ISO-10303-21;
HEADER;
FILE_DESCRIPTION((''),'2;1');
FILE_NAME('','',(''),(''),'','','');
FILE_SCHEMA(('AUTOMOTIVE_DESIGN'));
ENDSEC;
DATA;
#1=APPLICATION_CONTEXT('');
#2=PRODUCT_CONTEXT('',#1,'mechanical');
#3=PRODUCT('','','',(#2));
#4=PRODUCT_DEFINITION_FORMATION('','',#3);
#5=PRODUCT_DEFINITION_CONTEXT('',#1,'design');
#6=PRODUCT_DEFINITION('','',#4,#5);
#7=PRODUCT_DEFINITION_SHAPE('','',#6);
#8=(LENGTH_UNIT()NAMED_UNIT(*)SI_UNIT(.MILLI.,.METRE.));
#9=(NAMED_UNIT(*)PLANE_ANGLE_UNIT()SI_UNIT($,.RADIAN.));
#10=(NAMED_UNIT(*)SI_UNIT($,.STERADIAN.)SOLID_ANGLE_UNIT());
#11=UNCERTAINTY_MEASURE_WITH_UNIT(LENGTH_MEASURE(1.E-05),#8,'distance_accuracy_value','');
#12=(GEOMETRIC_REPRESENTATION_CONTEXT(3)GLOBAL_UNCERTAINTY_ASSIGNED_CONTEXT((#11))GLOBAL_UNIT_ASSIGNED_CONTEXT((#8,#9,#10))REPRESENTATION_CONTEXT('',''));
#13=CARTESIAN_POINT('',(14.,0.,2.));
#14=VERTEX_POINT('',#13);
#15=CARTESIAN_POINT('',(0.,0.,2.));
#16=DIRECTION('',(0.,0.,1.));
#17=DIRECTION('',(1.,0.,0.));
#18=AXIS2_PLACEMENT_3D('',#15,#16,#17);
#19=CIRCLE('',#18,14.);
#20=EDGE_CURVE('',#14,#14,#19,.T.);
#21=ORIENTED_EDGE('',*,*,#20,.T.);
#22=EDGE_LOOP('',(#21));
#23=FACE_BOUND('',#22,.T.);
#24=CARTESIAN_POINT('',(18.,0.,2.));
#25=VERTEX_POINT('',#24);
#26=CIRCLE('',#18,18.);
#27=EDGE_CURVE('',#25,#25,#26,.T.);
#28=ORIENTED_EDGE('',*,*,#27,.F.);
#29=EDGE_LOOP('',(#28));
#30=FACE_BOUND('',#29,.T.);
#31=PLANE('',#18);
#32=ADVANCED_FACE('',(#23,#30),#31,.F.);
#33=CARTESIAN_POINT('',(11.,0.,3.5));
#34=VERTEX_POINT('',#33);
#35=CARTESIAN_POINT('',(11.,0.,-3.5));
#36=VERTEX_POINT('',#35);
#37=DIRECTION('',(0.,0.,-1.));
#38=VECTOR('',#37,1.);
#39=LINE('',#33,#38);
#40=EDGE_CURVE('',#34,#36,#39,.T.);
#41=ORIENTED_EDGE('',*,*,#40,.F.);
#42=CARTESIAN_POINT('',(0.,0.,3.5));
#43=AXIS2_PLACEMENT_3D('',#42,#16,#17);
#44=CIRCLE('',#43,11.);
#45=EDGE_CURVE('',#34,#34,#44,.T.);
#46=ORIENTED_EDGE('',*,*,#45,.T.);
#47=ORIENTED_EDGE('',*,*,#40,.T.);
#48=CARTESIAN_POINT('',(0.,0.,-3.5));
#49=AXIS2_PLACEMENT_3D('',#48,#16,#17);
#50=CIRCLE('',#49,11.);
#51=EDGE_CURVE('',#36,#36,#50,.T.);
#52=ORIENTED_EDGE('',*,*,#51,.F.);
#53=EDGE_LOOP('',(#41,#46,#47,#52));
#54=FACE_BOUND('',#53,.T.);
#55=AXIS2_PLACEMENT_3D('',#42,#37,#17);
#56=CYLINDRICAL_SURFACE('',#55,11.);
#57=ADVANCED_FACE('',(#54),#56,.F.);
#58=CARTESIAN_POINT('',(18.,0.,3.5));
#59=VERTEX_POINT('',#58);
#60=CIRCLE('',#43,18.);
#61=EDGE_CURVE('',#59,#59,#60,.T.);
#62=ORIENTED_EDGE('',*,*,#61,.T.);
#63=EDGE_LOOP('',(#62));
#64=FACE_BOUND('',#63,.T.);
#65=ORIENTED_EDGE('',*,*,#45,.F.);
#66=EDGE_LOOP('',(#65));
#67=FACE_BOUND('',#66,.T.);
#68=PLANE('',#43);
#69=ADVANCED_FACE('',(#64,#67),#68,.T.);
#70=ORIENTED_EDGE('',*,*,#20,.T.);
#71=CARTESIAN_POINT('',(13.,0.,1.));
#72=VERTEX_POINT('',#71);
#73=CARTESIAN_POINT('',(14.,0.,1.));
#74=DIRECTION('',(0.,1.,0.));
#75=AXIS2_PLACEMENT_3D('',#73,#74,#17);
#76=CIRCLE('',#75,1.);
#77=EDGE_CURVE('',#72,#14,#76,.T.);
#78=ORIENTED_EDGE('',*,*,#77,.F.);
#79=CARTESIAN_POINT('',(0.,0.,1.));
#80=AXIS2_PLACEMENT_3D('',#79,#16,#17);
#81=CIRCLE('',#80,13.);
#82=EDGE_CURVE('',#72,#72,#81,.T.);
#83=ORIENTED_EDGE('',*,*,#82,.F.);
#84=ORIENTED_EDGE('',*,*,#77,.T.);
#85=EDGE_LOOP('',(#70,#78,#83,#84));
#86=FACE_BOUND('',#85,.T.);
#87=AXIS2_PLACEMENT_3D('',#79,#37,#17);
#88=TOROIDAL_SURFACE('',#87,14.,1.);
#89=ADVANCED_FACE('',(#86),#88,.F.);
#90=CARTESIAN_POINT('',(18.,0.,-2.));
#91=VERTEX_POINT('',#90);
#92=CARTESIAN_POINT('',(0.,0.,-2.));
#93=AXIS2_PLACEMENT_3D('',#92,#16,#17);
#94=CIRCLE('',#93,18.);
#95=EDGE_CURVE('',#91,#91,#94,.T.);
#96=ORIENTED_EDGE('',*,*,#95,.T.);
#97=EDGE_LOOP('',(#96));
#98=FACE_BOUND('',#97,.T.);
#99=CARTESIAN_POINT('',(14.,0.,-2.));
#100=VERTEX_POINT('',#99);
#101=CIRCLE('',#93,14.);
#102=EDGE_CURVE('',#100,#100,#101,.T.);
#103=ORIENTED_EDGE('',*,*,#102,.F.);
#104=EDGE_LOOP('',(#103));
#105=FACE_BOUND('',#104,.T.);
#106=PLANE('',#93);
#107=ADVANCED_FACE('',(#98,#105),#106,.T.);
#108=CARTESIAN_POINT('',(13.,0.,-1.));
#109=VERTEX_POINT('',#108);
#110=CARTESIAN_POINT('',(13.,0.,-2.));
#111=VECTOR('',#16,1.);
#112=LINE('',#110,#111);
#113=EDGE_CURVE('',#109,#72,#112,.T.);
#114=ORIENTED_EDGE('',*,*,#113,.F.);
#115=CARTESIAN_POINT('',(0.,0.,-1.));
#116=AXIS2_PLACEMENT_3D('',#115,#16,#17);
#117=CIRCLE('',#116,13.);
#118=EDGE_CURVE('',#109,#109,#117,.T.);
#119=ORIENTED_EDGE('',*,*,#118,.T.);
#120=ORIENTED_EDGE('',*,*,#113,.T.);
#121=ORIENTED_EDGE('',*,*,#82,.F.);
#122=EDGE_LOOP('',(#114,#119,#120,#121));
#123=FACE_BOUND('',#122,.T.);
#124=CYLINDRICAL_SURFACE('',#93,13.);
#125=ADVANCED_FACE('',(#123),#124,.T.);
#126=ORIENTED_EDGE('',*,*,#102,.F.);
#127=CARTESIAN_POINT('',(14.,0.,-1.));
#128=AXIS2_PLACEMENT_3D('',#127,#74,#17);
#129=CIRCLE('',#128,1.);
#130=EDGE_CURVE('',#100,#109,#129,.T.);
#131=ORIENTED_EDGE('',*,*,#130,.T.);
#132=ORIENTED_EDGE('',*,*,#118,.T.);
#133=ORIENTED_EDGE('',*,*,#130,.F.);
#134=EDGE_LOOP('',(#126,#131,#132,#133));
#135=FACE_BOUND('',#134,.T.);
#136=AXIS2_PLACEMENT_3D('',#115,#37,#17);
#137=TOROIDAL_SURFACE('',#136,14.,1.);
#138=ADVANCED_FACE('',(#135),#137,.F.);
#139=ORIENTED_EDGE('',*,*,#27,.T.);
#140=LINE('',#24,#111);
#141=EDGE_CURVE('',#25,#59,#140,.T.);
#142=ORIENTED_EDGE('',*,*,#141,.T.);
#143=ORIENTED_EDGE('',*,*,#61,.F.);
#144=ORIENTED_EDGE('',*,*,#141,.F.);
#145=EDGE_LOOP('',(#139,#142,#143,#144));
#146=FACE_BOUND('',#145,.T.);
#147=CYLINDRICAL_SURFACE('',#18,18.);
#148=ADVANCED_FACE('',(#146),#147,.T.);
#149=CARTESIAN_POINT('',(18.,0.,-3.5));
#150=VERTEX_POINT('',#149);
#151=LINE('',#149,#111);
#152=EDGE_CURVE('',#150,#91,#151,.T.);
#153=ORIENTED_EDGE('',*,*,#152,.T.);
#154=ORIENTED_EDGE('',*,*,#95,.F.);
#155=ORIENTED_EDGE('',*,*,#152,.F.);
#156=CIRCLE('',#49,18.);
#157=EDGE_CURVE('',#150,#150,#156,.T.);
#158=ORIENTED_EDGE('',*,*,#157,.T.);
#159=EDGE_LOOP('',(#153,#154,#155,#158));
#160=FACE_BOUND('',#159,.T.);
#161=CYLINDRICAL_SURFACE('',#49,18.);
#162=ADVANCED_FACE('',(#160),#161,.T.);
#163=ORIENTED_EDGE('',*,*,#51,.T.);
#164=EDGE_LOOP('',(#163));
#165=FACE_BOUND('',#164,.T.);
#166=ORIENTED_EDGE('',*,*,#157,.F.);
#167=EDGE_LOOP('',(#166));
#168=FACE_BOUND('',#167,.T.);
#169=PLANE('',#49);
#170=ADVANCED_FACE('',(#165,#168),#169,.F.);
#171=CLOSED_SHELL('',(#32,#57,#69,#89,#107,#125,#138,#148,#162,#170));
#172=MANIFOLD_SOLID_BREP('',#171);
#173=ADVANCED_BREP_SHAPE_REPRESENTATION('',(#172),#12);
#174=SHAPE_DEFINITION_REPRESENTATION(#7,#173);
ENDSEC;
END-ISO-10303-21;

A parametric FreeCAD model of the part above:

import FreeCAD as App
import Part
import Sketcher
from FreeCAD import Vector
Q = App.Units.Quantity


def edges_at(feature, points):
    """Names of the edges that pass closest to the given points."""
    edges = feature.Shape.Edges
    near = lambda p: min(range(len(edges)), key=lambda i: edges[i].distToShape(Part.Vertex(*p))[0])
    return sorted({f"Edge{near(p) + 1}" for p in points})


def add_polygon(sketch, points):
    """Adds a closed chain of lines whose ends are joined by coincident constraints."""
    first, n = sketch.GeometryCount, len(points)
    for a, b in zip(points, points[1:] + points[:1]):
        sketch.addGeometry(Part.LineSegment(App.Vector(*a, 0), App.Vector(*b, 0)), False)
    for i in range(n):
        sketch.addConstraint(Sketcher.Constraint("Coincident", first + i, 2, first + (i + 1) % n, 1))

doc = App.newDocument("Part")
body = doc.addObject("PartDesign::Body", "Body")

sketch1 = body.newObject("Sketcher::SketchObject", "Sketch")
sketch1.AttachmentSupport = (doc.getObject("XZ_Plane"), [""])
sketch1.MapMode = "FlatFace"
add_polygon(sketch1, [(18, 3.5), (11, 3.5), (11, -3.5), (18, -3.5), (18, -2), (13, -2), (13, 2), (18, 2)])
sketch1.addConstraint([
    Sketcher.Constraint("Horizontal", 0),
    Sketcher.Constraint("Vertical", 1),
    Sketcher.Constraint("Horizontal", 2),
    Sketcher.Constraint("Vertical", 3),
    Sketcher.Constraint("Horizontal", 4),
    Sketcher.Constraint("Vertical", 5),
    Sketcher.Constraint("Horizontal", 6),
    Sketcher.Constraint("Vertical", 7),
    Sketcher.Constraint("Symmetric", 3, 2, 6, 2, -1),
    Sketcher.Constraint("Equal", 2, 1),
    Sketcher.Constraint("Equal", 3, 7),
    Sketcher.Constraint("DistanceX", 0, 2, 0, 1, Q("7 mm")),
    Sketcher.Constraint("DistanceX", 4, 2, 4, 1, Q("5 mm")),
    Sketcher.Constraint("DistanceY", 5, 1, 5, 2, Q("4 mm")),
    Sketcher.Constraint("DistanceX", -1, 1, 0, 2, Q("11 mm")),
])
revolution = body.newObject("PartDesign::Revolution", "Revolution")
revolution.Profile = sketch1
revolution.ReferenceAxis = (sketch1, ["V_Axis"])
revolution.Angle = 360
doc.recompute()

fillet = body.newObject("PartDesign::Fillet", "Fillet")
fillet.Base = (revolution, edges_at(revolution, [(-13, 0, -2), (13, 0, 0), (-13, 0, 2)]))
fillet.Radius = 1

doc.recompute()
